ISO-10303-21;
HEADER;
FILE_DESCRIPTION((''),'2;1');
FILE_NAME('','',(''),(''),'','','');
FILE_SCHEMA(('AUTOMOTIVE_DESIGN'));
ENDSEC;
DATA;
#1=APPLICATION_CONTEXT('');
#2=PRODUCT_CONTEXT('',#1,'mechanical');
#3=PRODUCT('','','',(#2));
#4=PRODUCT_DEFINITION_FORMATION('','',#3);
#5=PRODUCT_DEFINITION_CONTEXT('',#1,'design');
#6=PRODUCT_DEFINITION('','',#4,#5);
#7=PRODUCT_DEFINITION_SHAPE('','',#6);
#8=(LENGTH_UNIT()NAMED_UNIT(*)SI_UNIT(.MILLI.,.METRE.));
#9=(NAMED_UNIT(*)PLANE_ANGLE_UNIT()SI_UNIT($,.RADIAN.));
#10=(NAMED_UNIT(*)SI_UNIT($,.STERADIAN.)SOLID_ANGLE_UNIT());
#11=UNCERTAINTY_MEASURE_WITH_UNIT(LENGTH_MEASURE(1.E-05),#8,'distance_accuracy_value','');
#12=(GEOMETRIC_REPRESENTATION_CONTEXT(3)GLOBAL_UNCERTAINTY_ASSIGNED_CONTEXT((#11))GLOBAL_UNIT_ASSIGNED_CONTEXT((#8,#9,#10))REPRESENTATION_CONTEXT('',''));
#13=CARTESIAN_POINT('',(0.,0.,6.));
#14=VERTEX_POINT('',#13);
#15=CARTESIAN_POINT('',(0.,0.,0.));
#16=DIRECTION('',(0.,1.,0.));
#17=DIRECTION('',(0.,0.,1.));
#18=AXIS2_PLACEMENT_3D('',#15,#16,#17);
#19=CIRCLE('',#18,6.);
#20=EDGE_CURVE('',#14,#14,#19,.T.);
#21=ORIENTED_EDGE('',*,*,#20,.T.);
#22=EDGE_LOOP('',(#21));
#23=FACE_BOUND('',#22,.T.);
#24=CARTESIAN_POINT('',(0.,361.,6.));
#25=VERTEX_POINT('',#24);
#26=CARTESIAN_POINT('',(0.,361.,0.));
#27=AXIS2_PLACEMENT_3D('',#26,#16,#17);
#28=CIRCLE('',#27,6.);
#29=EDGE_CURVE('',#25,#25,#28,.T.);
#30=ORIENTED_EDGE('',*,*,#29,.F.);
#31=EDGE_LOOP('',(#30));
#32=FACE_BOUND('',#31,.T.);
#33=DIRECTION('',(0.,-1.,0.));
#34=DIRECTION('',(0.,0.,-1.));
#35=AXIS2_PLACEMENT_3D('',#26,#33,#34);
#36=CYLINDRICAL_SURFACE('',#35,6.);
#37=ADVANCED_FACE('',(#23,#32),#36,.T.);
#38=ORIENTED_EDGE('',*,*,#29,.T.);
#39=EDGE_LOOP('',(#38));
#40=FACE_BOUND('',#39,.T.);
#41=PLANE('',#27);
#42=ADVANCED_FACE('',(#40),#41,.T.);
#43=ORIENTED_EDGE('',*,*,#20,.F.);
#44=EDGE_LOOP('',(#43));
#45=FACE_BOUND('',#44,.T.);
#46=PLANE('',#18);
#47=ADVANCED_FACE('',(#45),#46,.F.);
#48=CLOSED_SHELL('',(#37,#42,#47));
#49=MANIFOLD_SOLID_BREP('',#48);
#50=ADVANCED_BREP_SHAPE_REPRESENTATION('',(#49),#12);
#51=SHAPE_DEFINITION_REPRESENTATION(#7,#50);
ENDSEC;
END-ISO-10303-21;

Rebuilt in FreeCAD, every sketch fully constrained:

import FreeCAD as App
import Part
import Sketcher

V = App.Vector

doc = App.newDocument("Part")
params = doc.addObject("Spreadsheet::Sheet", "Params")
for row, (alias, value) in enumerate([
    ("sketch1_diameter", "12 mm"),
    ("pad1_length", "361 mm"),
], start=1):
    params.set(f"A{row}", alias)
    params.set(f"B{row}", "=" + value)
    params.setAlias(f"B{row}", alias)

body = doc.addObject("PartDesign::Body", "Body")

# Sketch on XZ plane
sketch1 = body.newObject("Sketcher::SketchObject", "Sketch")
sketch1.AttachmentSupport = (doc.getObject("XZ_Plane"), [""])
sketch1.MapMode = "FlatFace"
sketch1.addGeometry(Part.Circle(V(0, 0, 0), V(0, 0, 1), 6), False)
sketch1.addConstraint([
    Sketcher.Constraint("Coincident", 0, 3, -1, 1),
    Sketcher.Constraint("Diameter", 0, 12.0),
])
sketch1.setExpression("Constraints[1]", "Params.sketch1_diameter")
pad1 = body.newObject("PartDesign::Pad", "Pad")
pad1.Profile = sketch1
pad1.setExpression("Length", "Params.pad1_length")
pad1.Reversed = True

doc.recompute()
